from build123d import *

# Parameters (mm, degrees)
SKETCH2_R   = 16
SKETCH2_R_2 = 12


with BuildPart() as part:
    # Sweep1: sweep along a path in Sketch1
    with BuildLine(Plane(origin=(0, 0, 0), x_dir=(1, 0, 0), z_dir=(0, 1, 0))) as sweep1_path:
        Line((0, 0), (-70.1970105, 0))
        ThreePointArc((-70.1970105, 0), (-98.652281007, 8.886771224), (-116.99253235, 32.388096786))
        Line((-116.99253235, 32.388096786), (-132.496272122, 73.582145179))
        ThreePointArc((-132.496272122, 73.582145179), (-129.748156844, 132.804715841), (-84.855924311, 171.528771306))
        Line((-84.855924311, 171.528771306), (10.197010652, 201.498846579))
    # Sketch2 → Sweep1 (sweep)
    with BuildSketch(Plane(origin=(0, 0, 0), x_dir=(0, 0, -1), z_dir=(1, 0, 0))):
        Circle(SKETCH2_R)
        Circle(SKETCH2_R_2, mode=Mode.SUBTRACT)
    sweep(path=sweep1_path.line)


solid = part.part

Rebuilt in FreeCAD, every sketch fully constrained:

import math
import FreeCAD as App
import Part
import Sketcher
Q = App.Units.Quantity

doc = App.newDocument("Part")
body = doc.addObject("PartDesign::Body", "Body")

sketch1 = body.newObject("Sketcher::SketchObject", "Sketch")
sketch1.AttachmentSupport = (doc.getObject("YZ_Plane"), [""])
sketch1.MapMode = "FlatFace"
sketch1.addGeometry(Part.Circle(App.Vector(0, 0, 0), App.Vector(0, 0, 1), 16), False)
sketch1.addGeometry(Part.Circle(App.Vector(0, 0, 0), App.Vector(0, 0, 1), 12), False)
sketch1.addConstraint(Sketcher.Constraint("Coincident", 0, 3, -1, 1))
sketch1.addConstraint(Sketcher.Constraint("Coincident", 1, 3, -1, 1))
sketch1.addConstraint(Sketcher.Constraint("Diameter", 0, 32.0))
sketch1.addConstraint(Sketcher.Constraint("Diameter", 1, 24.0))

sketch2 = body.newObject("Sketcher::SketchObject", "Sketch001")
sketch2.AttachmentSupport = (doc.getObject("XZ_Plane"), [""])
sketch2.MapMode = "FlatFace"
sketch2.addGeometry(Part.LineSegment(App.Vector(0, 0, 0), App.Vector(-70.197011, 0, 0)), False)
sketch2.addGeometry(Part.ArcOfCircle(Part.Circle(App.Vector(-70.197011, -50, 0), App.Vector(0, 0, 1), 50), math.radians(90), math.radians(159.375734)), False)
sketch2.addGeometry(Part.LineSegment(App.Vector(-116.992532, -32.388097, 0), App.Vector(-132.496272, -73.582145, 0)), False)
sketch2.addGeometry(Part.ArcOfCircle(Part.Circle(App.Vector(-62.302989, -100, 0), App.Vector(0, 0, 1), 75), math.radians(159.375734), math.radians(252.5)), False)
sketch2.addGeometry(Part.LineSegment(App.Vector(-84.855924, -171.528771, 0), App.Vector(10.197011, -201.498847, 0)), False)
sketch2.addConstraint(Sketcher.Constraint("Tangent", 0, 2, 1, 1))
sketch2.addConstraint(Sketcher.Constraint("Tangent", 1, 2, 2, 1))
sketch2.addConstraint(Sketcher.Constraint("Tangent", 2, 2, 3, 1))
sketch2.addConstraint(Sketcher.Constraint("Tangent", 3, 2, 4, 1))
sketch2.addConstraint(Sketcher.Constraint("Horizontal", 0))
sketch2.addConstraint(Sketcher.Constraint("Coincident", 0, 1, -1, 1))
sketch2.addConstraint(Sketcher.Constraint("Radius", 1, 50.0))
sketch2.addConstraint(Sketcher.Constraint("Radius", 3, 75.0))
sketch2.addConstraint(Sketcher.Constraint("DistanceY", 3, 3, -1, 1, 100.0))
sketch2.addConstraint(Sketcher.Constraint("Angle", 4, Q("-17.5 deg")))
sketch2.addConstraint(Sketcher.Constraint("DistanceX", 3, 3, 4, 2, 72.5))
sketch2.addConstraint(Sketcher.Constraint("DistanceX", 0, 2, 0, 1, 70.197011))
sketch2.addConstraint(Sketcher.Constraint("DistanceY", 4, 2, 2, 2, 127.916701))
doc.recompute()

additivepipe = body.newObject("PartDesign::AdditivePipe", "AdditivePipe")
additivepipe.Profile = sketch1
additivepipe.Spine = (sketch2, ["Edge1", "Edge2", "Edge3", "Edge4", "Edge5"])

doc.recompute()
